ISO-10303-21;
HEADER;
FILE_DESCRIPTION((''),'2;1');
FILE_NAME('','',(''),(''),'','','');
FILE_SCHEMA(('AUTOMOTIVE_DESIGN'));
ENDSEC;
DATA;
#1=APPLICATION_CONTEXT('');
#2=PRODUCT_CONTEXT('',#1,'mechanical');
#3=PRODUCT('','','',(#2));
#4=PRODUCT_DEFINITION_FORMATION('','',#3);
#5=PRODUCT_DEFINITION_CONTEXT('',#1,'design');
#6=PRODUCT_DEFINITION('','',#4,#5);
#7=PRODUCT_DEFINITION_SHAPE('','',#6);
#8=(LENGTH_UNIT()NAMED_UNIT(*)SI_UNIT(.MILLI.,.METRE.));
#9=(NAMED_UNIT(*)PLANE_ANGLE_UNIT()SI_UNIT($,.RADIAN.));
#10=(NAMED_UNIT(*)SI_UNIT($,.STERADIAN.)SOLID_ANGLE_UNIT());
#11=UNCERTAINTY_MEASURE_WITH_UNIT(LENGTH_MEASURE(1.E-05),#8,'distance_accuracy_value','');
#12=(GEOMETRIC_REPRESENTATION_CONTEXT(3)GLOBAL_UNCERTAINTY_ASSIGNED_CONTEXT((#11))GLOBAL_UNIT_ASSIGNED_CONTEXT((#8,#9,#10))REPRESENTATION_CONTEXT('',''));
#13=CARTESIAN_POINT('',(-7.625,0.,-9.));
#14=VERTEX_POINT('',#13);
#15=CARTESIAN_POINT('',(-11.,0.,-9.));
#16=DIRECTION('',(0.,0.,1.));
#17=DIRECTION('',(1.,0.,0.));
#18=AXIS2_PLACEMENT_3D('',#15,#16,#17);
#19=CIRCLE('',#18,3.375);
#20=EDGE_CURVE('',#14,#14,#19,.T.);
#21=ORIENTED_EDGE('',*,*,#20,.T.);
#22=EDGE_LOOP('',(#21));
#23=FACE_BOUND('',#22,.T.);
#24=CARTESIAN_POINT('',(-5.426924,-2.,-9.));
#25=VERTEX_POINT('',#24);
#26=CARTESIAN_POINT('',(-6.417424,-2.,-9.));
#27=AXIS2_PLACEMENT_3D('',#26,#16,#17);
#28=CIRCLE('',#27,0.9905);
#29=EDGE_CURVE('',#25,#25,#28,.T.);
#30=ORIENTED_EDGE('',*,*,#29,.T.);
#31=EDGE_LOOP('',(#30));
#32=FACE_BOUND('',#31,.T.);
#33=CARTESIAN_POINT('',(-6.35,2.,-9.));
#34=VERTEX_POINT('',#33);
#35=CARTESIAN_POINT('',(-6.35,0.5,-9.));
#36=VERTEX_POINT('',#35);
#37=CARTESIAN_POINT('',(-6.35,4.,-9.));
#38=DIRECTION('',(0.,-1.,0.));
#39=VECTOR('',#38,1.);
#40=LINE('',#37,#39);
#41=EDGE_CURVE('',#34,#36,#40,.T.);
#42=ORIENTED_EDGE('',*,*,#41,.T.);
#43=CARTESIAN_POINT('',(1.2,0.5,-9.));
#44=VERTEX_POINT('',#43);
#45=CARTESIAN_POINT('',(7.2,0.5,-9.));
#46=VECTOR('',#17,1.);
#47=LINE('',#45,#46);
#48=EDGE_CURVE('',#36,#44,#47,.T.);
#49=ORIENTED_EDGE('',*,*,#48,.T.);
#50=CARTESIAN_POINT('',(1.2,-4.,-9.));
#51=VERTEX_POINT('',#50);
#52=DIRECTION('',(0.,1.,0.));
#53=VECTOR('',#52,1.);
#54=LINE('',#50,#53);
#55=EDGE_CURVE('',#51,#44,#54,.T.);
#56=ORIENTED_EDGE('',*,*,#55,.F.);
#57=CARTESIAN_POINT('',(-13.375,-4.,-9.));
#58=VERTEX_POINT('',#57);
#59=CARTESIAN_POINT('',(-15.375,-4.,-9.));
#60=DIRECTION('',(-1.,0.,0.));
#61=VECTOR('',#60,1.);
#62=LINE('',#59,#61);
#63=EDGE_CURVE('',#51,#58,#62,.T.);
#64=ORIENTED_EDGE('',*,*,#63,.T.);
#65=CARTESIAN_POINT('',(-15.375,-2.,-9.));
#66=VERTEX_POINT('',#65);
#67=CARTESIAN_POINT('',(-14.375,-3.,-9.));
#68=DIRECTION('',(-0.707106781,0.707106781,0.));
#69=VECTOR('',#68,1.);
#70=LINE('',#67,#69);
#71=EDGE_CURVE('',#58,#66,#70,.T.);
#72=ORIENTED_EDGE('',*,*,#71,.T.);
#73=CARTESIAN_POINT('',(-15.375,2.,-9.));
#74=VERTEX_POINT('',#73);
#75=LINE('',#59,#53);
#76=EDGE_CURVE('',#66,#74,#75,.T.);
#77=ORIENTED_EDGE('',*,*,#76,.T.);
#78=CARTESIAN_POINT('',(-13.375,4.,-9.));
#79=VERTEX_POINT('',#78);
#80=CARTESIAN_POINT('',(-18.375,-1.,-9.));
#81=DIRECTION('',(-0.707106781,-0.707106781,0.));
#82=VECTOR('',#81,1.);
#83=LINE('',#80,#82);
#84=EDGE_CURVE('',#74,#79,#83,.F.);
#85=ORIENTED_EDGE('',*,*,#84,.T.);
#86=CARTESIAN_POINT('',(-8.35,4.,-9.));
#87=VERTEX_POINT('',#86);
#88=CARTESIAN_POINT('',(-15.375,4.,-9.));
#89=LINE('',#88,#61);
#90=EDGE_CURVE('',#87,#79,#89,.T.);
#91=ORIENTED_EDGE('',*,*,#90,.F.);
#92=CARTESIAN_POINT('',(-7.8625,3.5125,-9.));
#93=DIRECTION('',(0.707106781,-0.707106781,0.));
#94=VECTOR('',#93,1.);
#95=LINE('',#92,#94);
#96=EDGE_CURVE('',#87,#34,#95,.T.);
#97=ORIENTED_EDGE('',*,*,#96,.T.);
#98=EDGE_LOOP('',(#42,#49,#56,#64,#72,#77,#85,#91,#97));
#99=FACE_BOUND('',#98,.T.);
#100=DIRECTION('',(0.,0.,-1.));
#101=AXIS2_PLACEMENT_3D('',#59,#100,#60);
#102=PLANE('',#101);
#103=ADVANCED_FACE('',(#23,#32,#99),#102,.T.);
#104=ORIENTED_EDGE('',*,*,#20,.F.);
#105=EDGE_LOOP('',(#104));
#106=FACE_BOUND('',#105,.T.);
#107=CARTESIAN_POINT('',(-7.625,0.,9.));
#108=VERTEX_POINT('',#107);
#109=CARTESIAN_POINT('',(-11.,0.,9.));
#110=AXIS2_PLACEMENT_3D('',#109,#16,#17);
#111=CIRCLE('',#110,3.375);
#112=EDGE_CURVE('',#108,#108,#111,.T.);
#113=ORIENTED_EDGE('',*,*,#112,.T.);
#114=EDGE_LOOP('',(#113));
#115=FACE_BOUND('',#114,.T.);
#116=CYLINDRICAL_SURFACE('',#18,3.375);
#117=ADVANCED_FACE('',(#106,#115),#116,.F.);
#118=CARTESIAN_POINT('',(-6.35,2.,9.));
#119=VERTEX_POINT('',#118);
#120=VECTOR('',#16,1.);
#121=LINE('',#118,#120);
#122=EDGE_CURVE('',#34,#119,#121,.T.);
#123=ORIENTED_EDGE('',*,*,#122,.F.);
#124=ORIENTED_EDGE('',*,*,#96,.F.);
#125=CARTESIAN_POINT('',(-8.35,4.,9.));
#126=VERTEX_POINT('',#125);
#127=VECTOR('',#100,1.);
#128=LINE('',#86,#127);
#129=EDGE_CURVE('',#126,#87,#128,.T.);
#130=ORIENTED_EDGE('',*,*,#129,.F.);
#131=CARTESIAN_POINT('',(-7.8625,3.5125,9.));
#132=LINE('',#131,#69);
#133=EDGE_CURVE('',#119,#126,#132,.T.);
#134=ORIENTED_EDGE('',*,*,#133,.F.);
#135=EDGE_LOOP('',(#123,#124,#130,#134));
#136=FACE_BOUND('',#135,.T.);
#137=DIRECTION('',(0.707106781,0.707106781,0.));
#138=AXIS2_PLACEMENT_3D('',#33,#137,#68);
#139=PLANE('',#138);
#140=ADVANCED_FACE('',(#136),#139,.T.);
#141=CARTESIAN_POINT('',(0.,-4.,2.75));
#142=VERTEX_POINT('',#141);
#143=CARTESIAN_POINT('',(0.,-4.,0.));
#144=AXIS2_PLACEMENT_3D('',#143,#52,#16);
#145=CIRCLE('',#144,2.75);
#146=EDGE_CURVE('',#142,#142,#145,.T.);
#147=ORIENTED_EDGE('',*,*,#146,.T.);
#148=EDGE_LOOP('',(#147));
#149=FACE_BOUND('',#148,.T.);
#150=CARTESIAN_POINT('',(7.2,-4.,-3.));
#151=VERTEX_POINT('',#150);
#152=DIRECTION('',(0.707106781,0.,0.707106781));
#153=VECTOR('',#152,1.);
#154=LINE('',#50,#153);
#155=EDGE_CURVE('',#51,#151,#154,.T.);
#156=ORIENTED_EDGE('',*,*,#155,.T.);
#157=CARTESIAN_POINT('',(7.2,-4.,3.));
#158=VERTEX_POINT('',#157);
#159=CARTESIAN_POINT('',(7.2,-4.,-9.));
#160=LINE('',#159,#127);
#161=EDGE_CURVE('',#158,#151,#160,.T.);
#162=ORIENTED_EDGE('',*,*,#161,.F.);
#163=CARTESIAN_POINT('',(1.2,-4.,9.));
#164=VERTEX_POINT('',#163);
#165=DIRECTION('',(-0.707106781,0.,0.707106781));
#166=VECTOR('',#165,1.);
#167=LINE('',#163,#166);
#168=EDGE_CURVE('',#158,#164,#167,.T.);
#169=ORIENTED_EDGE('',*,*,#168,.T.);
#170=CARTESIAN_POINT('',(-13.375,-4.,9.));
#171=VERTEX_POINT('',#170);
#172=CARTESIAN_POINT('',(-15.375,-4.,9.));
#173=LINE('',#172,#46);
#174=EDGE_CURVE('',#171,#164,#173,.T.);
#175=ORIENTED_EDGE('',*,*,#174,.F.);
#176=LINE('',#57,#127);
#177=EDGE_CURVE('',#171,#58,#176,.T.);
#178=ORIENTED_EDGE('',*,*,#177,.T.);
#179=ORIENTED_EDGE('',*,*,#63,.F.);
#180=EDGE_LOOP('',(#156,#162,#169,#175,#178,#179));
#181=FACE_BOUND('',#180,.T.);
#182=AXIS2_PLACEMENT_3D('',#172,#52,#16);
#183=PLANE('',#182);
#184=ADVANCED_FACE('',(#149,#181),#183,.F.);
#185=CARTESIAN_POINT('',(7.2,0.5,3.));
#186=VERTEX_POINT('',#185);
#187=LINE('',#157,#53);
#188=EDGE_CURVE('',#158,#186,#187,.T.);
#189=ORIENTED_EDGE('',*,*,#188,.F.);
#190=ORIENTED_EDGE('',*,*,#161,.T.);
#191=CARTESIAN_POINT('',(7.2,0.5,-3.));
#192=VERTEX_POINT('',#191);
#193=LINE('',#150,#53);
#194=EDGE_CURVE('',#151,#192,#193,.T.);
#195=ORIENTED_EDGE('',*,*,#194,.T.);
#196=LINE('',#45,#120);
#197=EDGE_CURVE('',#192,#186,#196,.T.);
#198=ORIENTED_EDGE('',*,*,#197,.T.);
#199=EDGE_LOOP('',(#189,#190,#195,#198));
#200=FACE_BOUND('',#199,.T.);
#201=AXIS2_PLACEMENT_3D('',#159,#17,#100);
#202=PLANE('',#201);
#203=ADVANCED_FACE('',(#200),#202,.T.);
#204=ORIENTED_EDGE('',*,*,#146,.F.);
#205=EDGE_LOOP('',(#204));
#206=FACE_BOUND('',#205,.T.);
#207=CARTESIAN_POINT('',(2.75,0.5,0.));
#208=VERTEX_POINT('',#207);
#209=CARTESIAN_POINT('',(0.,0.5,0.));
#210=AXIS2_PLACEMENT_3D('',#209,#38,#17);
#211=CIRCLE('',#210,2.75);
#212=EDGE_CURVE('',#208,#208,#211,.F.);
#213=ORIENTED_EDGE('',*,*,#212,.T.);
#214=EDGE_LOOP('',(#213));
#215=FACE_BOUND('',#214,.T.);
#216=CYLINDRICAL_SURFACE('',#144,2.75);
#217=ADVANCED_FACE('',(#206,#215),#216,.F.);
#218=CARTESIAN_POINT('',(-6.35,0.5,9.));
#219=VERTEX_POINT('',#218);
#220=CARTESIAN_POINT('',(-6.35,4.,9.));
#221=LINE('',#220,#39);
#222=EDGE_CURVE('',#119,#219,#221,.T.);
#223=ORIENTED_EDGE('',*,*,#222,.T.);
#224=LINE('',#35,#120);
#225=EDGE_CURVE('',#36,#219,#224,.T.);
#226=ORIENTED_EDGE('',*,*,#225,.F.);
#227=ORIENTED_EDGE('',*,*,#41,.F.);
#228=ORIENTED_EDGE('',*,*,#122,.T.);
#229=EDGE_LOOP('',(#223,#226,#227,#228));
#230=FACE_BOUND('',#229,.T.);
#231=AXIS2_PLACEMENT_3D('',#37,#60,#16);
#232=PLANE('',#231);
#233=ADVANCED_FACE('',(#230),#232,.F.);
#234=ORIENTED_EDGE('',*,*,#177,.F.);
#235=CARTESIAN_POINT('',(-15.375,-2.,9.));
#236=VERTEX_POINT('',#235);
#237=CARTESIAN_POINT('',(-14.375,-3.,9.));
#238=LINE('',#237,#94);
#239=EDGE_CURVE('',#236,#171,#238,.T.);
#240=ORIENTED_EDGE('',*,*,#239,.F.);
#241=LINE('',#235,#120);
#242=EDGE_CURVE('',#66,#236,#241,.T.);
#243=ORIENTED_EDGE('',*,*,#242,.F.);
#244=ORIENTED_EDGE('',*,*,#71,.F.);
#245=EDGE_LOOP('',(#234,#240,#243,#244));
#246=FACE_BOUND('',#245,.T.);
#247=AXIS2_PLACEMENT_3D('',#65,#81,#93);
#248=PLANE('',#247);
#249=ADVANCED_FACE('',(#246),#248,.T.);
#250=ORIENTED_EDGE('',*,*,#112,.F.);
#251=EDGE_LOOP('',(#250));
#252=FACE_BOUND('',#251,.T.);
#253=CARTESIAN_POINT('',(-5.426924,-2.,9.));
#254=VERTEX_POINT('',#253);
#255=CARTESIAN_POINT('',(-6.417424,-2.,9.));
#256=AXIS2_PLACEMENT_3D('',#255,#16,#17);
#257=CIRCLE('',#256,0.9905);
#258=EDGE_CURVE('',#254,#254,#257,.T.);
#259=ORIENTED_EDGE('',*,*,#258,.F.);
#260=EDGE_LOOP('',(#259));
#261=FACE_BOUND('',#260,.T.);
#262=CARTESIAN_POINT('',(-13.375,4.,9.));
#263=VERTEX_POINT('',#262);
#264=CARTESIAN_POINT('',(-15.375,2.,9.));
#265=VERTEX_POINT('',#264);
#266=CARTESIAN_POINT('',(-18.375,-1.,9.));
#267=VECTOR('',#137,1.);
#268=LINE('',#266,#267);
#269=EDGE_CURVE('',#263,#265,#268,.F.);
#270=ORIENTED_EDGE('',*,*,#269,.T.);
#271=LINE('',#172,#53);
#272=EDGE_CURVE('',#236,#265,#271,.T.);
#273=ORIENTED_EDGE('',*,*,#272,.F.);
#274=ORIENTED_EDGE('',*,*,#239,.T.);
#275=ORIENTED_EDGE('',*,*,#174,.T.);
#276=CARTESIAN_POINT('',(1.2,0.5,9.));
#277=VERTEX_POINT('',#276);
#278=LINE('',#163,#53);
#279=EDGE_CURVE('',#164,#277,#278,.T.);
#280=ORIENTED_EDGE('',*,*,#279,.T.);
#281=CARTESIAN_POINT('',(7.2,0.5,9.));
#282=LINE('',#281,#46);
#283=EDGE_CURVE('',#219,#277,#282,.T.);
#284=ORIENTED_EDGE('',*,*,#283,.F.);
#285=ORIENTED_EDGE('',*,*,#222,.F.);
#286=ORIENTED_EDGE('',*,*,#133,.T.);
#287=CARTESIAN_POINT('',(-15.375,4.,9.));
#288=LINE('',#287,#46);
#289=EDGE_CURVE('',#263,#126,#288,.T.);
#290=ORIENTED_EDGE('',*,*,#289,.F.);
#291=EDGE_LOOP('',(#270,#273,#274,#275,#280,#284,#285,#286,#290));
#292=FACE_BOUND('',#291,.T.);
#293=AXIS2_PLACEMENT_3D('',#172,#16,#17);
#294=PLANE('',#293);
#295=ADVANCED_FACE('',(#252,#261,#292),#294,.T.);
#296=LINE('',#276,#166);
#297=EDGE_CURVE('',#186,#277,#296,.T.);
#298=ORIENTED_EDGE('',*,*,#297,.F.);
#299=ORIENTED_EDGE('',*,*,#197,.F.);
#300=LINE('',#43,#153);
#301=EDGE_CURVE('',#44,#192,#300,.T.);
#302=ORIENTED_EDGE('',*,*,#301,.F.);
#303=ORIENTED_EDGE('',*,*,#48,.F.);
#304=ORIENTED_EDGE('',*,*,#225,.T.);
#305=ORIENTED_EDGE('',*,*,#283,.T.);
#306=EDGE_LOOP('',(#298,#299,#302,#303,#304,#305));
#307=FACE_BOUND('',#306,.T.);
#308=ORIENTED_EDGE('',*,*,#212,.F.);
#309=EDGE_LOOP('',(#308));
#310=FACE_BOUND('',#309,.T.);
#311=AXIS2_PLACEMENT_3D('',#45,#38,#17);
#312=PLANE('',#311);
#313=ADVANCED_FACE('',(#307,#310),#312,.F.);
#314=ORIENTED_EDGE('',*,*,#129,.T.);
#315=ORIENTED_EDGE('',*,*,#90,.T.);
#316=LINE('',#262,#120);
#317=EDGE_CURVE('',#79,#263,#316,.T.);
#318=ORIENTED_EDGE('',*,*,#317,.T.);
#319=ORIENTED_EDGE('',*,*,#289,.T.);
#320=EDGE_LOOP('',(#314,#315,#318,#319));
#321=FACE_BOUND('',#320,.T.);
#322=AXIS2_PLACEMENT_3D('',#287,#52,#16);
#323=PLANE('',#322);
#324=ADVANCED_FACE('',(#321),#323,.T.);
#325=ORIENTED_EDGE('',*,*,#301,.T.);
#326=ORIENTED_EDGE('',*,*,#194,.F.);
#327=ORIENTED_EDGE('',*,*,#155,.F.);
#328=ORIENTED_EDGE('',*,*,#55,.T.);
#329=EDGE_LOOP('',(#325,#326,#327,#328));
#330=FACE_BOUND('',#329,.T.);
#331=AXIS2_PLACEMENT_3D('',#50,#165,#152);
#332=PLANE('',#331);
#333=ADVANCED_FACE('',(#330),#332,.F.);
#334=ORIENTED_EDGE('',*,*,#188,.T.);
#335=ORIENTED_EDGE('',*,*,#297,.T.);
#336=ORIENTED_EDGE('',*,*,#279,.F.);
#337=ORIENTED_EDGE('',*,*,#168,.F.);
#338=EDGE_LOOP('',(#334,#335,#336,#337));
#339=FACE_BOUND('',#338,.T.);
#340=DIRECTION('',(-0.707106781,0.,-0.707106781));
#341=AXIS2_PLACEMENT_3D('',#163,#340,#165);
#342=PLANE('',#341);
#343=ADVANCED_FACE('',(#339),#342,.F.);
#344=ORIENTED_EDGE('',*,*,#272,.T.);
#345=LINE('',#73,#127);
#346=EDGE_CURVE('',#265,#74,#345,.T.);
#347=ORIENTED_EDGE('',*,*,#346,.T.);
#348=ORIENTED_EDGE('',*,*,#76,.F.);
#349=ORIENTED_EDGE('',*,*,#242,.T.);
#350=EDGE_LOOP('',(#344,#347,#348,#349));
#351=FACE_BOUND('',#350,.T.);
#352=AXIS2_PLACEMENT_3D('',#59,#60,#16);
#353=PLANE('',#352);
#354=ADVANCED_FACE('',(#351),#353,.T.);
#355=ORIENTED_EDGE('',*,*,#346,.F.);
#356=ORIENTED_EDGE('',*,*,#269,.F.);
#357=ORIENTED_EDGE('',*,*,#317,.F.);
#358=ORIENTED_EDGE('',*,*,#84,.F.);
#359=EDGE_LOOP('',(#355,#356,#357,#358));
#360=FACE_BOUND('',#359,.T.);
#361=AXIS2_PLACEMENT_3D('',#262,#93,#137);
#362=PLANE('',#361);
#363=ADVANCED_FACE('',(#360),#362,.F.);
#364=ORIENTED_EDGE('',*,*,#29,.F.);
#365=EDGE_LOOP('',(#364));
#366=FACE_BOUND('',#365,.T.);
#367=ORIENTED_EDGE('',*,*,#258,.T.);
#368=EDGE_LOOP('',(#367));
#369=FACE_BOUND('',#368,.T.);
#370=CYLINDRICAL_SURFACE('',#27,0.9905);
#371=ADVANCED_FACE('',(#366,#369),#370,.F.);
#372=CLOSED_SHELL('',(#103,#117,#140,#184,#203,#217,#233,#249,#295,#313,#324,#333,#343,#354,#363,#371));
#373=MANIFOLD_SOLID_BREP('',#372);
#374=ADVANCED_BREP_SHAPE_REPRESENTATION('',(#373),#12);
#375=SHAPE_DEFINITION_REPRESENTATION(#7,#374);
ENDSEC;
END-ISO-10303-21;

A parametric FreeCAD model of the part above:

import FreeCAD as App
import Part
import Sketcher

V = App.Vector
Q = App.Units.Quantity


def edges_at(feature, points):
    """Names of the edges that pass closest to the given points."""
    edges = feature.Shape.Edges
    near = lambda p: min(range(len(edges)), key=lambda i: edges[i].distToShape(Part.Vertex(*p))[0])
    return sorted({f"Edge{near(p) + 1}" for p in points})

doc = App.newDocument("Part")
body = doc.addObject("PartDesign::Body", "Body")

sketch1 = doc.addObject("Sketcher::SketchObject", "Sketch")
body.addObject(sketch1)
sketch1.AttachmentSupport = (doc.XZ_Plane, [""])
sketch1.MapMode = "FlatFace"
sketch1.addGeometry([
    Part.LineSegment(V(-15.4, -9, 0), V(-15.4, 9, 0)),
    Part.LineSegment(V(-15.4, 9, 0), V(7.2, 9, 0)),
    Part.LineSegment(V(7.2, 9, 0), V(7.2, -9, 0)),
    Part.LineSegment(V(7.2, -9, 0), V(-15.4, -9, 0)),
    Part.Circle(V(0, 0, 0), V(0, 0, 1), 2.8),
], False)
sketch1.addConstraint([
    Sketcher.Constraint("Coincident", 0, 2, 1, 1),
    Sketcher.Constraint("Coincident", 1, 2, 2, 1),
    Sketcher.Constraint("Coincident", 2, 2, 3, 1),
    Sketcher.Constraint("Coincident", 3, 2, 0, 1),
    Sketcher.Constraint("Vertical", 0),
    Sketcher.Constraint("Horizontal", 1),
    Sketcher.Constraint("Vertical", 2),
    Sketcher.Constraint("Horizontal", 3),
    Sketcher.Constraint("Coincident", 4, 3, -1, 1),
    Sketcher.Constraint("Diameter", 4, Q("5.5 mm")),
    Sketcher.Constraint("DistanceY", 0, 1, 0, 2, Q("18 mm")),
    Sketcher.Constraint("DistanceY", -1, 1, 0, 2, Q("9 mm")),
    Sketcher.Constraint("DistanceX", -1, 1, 1, 2, Q("7.2 mm")),
    Sketcher.Constraint("DistanceX", 1, 1, 1, 2, Q("22.575 mm")),
])
pad1 = doc.addObject("PartDesign::Pad", "Pad")
body.addObject(pad1)
pad1.Profile = sketch1
pad1.Type = "TwoLengths"
pad1.Length = 4
pad1.Length2 = 4
pad1.Reversed = True

sketch2 = doc.addObject("Sketcher::SketchObject", "Sketch001")
body.addObject(sketch2)
sketch2.AttachmentSupport = (doc.XY_Plane, [""])
sketch2.MapMode = "FlatFace"
sketch2.AttachmentOffset = App.Placement(V(0, 0, 9), App.Rotation())
sketch2.addGeometry([
    Part.Circle(V(-11, 0, 0), V(0, 0, 1), 3.4),
    Part.Circle(V(-6.4, -2, 0), V(0, 0, 1), 1),
], False)
sketch2.addConstraint([
    Sketcher.Constraint("PointOnObject", 0, 3, -1),
    Sketcher.Constraint("Diameter", 0, Q("6.75 mm")),
    Sketcher.Constraint("Diameter", 1, Q("1.981 mm")),
    Sketcher.Constraint("DistanceX", 0, 3, -1, 1, Q("11 mm")),
    Sketcher.Constraint("DistanceY", 1, 3, -1, 1, Q("2 mm")),
    Sketcher.Constraint("DistanceX", 1, 3, -1, 1, Q("6.417424 mm")),
])
pocket1 = doc.addObject("PartDesign::Pocket", "Pocket")
body.addObject(pocket1)
pocket1.Profile = sketch2
pocket1.Type = "ThroughAll"

sketch3 = doc.addObject("Sketcher::SketchObject", "Sketch002")
body.addObject(sketch3)
sketch3.AttachmentSupport = (doc.XY_Plane, [""])
sketch3.MapMode = "FlatFace"
sketch3.AttachmentOffset = App.Placement(V(0, 0, 9), App.Rotation())
sketch3.addGeometry([
    Part.LineSegment(V(-6.3, 4, 0), V(-6.3, 0.5, 0)),
    Part.LineSegment(V(-6.3, 0.5, 0), V(7.2, 0.5, 0)),
    Part.LineSegment(V(7.2, 0.5, 0), V(7.2, 4, 0)),
    Part.LineSegment(V(7.2, 4, 0), V(-6.3, 4, 0)),
], False)
sketch3.addConstraint([
    Sketcher.Constraint("Coincident", 0, 2, 1, 1),
    Sketcher.Constraint("Coincident", 1, 2, 2, 1),
    Sketcher.Constraint("Coincident", 2, 2, 3, 1),
    Sketcher.Constraint("Coincident", 3, 2, 0, 1),
    Sketcher.Constraint("Vertical", 0),
    Sketcher.Constraint("Horizontal", 1),
    Sketcher.Constraint("Vertical", 2),
    Sketcher.Constraint("Horizontal", 3),
    Sketcher.Constraint("DistanceY", 0, 2, 0, 1, Q("3.5 mm")),
    Sketcher.Constraint("DistanceY", -1, 1, 2, 2, Q("4 mm")),
    Sketcher.Constraint("DistanceX", 1, 1, 1, 2, Q("13.55 mm")),
    Sketcher.Constraint("DistanceX", -1, 1, 1, 2, Q("7.2 mm")),
])
pocket2 = doc.addObject("PartDesign::Pocket", "Pocket001")
body.addObject(pocket2)
pocket2.Profile = sketch3
pocket2.Type = "ThroughAll"

sketch4 = doc.addObject("Sketcher::SketchObject", "Sketch003")
body.addObject(sketch4)
sketch4.AttachmentSupport = (doc.XZ_Plane, [""])
sketch4.MapMode = "FlatFace"
sketch4.AttachmentOffset = App.Placement(V(0, 0, -0.5), App.Rotation())
sketch4.addGeometry([
    Part.LineSegment(V(1, -9, 0), V(7, -3, 0)),
    Part.LineSegment(V(7, -3, 0), V(7, -9, 0)),
    Part.LineSegment(V(7, -9, 0), V(1, -9, 0)),
    Part.LineSegment(V(7, 3, 0), V(1, 9, 0)),
    Part.LineSegment(V(1, 9, 0), V(7, 9, 0)),
    Part.LineSegment(V(7, 9, 0), V(7, 3, 0)),
], False)
sketch4.addConstraint([
    Sketcher.Constraint("Coincident", 0, 2, 1, 1),
    Sketcher.Constraint("Coincident", 1, 2, 2, 1),
    Sketcher.Constraint("Coincident", 2, 2, 0, 1),
    Sketcher.Constraint("Coincident", 3, 2, 4, 1),
    Sketcher.Constraint("Coincident", 4, 2, 5, 1),
    Sketcher.Constraint("Coincident", 5, 2, 3, 1),
    Sketcher.Constraint("Vertical", 1),
    Sketcher.Constraint("Horizontal", 2),
    Sketcher.Constraint("Horizontal", 4),
    Sketcher.Constraint("Vertical", 5),
    Sketcher.Constraint("Symmetric", 2, 2, 3, 2, -1),
    Sketcher.Constraint("Symmetric", 0, 2, 5, 2, -1),
    Sketcher.Constraint("Perpendicular", 0, 3),
    Sketcher.Constraint("DistanceX", 2, 2, 2, 1, Q("6 mm")),
    Sketcher.Constraint("DistanceY", 0, 2, -1, 1, Q("3 mm")),
    Sketcher.Constraint("DistanceX", -1, 1, 0, 2, Q("7.2 mm")),
])
pocket3 = doc.addObject("PartDesign::Pocket", "Pocket002")
body.addObject(pocket3)
pocket3.Profile = sketch4
pocket3.Type = "ThroughAll"
pocket3.Reversed = True
doc.recompute()

chamfer = doc.addObject("PartDesign::Chamfer", "Chamfer")
body.addObject(chamfer)
chamfer.Base = (pocket3, edges_at(pocket3, [(-15.375, 4, 0), (-15.375, -4, 0), (-6.35, 4, 0)]))
chamfer.Size = 2

doc.recompute()
